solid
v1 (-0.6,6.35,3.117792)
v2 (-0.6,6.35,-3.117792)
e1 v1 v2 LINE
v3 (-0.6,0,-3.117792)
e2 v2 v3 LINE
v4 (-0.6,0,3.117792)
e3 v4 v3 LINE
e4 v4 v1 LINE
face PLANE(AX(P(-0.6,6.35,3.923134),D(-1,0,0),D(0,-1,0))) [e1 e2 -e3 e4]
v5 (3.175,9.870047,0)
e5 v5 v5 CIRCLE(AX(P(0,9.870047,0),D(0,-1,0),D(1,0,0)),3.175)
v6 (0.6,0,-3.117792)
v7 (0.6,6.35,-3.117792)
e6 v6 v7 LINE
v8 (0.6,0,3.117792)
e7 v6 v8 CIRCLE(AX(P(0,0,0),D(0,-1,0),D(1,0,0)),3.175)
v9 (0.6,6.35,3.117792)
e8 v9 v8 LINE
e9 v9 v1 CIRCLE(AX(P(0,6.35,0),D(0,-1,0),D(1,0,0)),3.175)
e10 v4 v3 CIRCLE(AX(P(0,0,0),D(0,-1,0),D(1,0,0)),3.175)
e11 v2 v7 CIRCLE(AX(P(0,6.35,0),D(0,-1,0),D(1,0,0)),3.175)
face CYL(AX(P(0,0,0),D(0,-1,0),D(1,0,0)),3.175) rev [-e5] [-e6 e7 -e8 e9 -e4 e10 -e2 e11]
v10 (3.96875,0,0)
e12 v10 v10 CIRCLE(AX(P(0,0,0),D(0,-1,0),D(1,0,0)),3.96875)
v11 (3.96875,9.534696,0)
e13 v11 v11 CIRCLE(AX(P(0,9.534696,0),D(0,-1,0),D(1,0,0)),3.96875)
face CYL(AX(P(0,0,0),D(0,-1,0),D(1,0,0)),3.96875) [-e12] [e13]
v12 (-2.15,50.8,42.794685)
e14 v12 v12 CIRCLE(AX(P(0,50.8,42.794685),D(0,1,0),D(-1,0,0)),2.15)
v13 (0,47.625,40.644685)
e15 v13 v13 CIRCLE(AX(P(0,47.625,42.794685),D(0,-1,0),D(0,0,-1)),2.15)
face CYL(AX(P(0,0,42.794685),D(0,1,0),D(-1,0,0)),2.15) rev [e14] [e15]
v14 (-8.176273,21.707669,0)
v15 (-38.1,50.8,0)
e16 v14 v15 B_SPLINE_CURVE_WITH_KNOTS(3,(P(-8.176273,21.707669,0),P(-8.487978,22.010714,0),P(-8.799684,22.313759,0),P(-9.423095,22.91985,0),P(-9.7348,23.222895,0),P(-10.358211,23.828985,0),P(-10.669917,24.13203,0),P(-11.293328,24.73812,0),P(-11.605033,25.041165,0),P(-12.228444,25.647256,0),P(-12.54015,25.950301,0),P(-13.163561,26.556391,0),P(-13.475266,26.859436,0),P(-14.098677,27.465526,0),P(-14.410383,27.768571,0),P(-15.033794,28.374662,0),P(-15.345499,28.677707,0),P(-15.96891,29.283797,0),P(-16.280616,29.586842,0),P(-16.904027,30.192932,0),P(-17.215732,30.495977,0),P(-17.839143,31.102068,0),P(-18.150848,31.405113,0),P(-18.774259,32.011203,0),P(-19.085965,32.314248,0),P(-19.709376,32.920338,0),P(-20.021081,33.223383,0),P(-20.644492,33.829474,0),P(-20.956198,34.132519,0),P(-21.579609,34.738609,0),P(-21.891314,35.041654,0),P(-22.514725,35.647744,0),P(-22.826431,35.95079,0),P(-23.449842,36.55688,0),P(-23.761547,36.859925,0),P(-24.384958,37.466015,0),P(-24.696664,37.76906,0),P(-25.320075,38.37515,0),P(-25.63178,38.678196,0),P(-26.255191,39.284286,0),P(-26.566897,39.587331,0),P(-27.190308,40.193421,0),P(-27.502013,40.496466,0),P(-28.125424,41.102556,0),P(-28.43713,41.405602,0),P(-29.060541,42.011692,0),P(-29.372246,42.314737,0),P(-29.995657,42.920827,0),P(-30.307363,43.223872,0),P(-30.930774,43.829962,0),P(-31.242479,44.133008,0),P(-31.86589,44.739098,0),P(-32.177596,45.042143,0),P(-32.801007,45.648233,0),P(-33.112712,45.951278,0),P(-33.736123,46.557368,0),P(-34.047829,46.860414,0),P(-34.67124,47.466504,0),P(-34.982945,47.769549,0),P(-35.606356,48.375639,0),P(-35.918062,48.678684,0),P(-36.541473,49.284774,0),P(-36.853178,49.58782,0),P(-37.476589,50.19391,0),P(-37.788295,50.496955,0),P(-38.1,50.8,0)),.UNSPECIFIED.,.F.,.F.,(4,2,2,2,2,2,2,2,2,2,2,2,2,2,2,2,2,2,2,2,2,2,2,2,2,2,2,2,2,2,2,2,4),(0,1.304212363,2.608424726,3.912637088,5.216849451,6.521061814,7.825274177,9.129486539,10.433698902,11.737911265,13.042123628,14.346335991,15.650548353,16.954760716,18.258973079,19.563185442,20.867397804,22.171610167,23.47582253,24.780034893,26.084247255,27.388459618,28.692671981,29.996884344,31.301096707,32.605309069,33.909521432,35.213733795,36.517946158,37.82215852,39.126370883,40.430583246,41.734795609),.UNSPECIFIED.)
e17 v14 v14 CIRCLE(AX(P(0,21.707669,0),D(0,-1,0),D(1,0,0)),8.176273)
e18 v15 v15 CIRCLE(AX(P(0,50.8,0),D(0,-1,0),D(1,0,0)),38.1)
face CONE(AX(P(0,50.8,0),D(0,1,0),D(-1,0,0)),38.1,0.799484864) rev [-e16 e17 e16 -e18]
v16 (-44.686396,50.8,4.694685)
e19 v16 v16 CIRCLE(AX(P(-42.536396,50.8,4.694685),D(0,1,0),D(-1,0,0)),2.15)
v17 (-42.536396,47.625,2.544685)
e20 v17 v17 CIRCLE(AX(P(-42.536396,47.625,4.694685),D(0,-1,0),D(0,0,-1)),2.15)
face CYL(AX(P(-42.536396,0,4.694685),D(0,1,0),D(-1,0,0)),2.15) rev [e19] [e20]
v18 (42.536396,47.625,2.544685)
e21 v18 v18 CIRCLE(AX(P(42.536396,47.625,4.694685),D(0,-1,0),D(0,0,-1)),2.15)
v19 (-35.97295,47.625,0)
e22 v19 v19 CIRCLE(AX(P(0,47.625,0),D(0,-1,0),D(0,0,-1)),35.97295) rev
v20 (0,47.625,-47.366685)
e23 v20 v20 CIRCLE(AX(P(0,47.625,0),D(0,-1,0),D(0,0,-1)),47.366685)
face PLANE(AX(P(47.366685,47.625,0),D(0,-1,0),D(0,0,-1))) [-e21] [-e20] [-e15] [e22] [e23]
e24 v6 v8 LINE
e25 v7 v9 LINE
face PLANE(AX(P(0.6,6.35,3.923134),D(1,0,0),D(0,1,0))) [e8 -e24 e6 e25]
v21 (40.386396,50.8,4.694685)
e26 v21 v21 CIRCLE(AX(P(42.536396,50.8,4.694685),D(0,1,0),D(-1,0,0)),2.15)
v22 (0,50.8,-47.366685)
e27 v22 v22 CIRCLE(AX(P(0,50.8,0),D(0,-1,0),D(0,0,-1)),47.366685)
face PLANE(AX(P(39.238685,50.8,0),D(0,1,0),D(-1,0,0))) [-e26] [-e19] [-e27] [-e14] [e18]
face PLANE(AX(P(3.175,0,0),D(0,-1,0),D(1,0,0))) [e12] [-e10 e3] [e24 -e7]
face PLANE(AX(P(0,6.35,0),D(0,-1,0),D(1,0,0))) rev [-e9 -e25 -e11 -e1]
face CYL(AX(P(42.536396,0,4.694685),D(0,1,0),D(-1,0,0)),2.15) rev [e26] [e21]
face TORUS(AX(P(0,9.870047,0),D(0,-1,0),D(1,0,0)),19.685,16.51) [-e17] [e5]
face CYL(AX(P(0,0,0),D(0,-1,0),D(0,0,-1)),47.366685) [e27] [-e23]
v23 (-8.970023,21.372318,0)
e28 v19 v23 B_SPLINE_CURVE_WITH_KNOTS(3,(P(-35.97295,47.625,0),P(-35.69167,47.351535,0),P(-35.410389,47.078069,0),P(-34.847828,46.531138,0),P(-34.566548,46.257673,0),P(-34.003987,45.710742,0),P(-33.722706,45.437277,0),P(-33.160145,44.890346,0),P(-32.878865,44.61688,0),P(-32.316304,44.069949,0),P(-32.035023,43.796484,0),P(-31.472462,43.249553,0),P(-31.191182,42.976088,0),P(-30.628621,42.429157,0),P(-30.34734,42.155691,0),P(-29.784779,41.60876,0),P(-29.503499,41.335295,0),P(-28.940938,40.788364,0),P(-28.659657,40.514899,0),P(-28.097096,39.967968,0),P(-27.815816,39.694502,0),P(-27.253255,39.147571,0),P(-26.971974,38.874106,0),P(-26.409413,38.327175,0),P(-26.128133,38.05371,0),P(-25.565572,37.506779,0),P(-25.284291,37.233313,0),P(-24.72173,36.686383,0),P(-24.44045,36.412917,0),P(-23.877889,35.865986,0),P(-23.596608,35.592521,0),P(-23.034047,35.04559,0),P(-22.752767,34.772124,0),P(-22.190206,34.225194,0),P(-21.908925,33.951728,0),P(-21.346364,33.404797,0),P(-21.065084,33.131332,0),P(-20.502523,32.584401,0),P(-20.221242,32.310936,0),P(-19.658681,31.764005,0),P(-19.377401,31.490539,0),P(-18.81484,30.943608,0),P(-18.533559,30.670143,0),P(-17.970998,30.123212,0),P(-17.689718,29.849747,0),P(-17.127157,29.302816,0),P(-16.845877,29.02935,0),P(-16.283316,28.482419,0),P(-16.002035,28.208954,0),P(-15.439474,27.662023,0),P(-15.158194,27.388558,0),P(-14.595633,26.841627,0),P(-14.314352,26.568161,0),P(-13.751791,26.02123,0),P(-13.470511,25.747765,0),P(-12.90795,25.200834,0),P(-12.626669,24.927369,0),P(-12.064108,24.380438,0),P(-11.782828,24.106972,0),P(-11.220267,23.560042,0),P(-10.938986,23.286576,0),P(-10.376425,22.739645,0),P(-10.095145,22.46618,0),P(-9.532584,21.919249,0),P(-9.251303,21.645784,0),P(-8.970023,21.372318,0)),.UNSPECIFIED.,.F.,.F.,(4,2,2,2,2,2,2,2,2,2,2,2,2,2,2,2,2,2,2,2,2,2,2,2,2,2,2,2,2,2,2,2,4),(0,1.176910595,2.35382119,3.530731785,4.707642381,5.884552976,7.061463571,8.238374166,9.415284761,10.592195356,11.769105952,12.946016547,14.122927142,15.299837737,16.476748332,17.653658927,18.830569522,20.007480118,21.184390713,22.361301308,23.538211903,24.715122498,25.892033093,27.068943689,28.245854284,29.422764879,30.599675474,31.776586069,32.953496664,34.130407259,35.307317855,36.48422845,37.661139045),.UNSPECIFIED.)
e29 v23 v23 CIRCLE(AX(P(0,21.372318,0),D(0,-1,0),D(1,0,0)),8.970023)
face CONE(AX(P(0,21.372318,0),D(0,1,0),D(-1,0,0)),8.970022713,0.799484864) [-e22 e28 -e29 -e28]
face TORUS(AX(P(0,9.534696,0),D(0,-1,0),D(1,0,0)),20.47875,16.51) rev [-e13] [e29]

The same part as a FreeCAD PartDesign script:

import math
import FreeCAD as App
import Part
import Sketcher

V = App.Vector
Q = App.Units.Quantity

doc = App.newDocument("Part")
body = doc.addObject("PartDesign::Body", "Body")

# Sketch on XY plane
sketch1 = body.newObject("Sketcher::SketchObject", "Sketch")
sketch1.AttachmentSupport = (doc.getObject("XY_Plane"), [""])
sketch1.MapMode = "FlatFace"
sketch1.addGeometry([
    Part.LineSegment(V(4, 0, 0), V(4, 9.5, 0)),  # 0
    Part.ArcOfCircle(Part.Circle(V(20.5, 9.5, 0), V(0, 0, 1), 16.5), math.radians(134), math.radians(180)),  # 1
    Part.LineSegment(V(9, 21.4, 0), V(39.2, 50.8, 0)),  # 2
    Part.LineSegment(V(39.2, 50.8, 0), V(38.1, 50.8, 0)),  # 3
    Part.LineSegment(V(38.1, 50.8, 0), V(8.2, 21.7, 0)),  # 4
    Part.ArcOfCircle(Part.Circle(V(19.7, 9.9, 0), V(0, 0, 1), 16.5), math.radians(134), math.radians(180)),  # 5
    Part.LineSegment(V(3.2, 9.9, 0), V(3.2, 0, 0)),  # 6
    Part.LineSegment(V(3.2, 0, 0), V(4, 0, 0)),  # 7
], False)
sketch1.addConstraint([
    Sketcher.Constraint("Tangent", 0, 2, 1, 2),
    Sketcher.Constraint("Tangent", 1, 1, 2, 1),
    Sketcher.Constraint("Coincident", 2, 2, 3, 1),
    Sketcher.Constraint("Coincident", 3, 2, 4, 1),
    Sketcher.Constraint("Tangent", 4, 2, 5, 1),
    Sketcher.Constraint("Tangent", 5, 2, 6, 1),
    Sketcher.Constraint("Coincident", 6, 2, 7, 1),
    Sketcher.Constraint("Coincident", 7, 2, 0, 1),
    Sketcher.Constraint("Vertical", 0),
    Sketcher.Constraint("Horizontal", 3),
    Sketcher.Constraint("Vertical", 6),
    Sketcher.Constraint("Horizontal", 7),
    Sketcher.Constraint("Equal", 1, 5),
    Sketcher.Constraint("PointOnObject", 6, 2, -1),
    Sketcher.Constraint("Parallel", 2, 4),
    Sketcher.Constraint("Radius", 1, Q("0.65 in")),
    Sketcher.Constraint("DistanceY", -1, 1, 2, 2, Q("2 in")),
    Sketcher.Constraint("DistanceX", -1, 1, 3, 2, Q("1.5 in")),
    Sketcher.Constraint("DistanceX", 7, 1, 7, 2, Q("0.03125 in")),
    Sketcher.Constraint("DistanceX", -1, 1, 5, 3, Q("0.775 in")),
    Sketcher.Constraint("Distance", 2, Q("42.215878 mm")),
    Sketcher.Constraint("DistanceX", 3, 2, 3, 1, Q("1.138685 mm")),
])
revolution = body.newObject("PartDesign::Revolution", "Revolution")
revolution.Profile = sketch1
revolution.ReferenceAxis = (sketch1, ["V_Axis"])
revolution.Angle = 360

# Sketch on XY plane
sketch2 = body.newObject("Sketcher::SketchObject", "Sketch001")
sketch2.AttachmentSupport = (doc.getObject("XY_Plane"), [""])
sketch2.MapMode = "FlatFace"
sketch2.addGeometry([
    Part.LineSegment(V(47.4, 50.8, 0), V(39.2, 50.8, 0)),
    Part.LineSegment(V(39.2, 50.8, 0), V(36, 47.6, 0)),
    Part.LineSegment(V(36, 47.6, 0), V(47.4, 47.6, 0)),
    Part.LineSegment(V(47.4, 47.6, 0), V(47.4, 50.8, 0)),
], False)
sketch2.addConstraint([
    Sketcher.Constraint("Coincident", 0, 2, 1, 1),
    Sketcher.Constraint("Coincident", 1, 2, 2, 1),
    Sketcher.Constraint("Coincident", 2, 2, 3, 1),
    Sketcher.Constraint("Coincident", 3, 2, 0, 1),
    Sketcher.Constraint("Horizontal", 0),
    Sketcher.Constraint("Horizontal", 2),
    Sketcher.Constraint("Vertical", 3),
    Sketcher.Constraint("DistanceY", -1, 1, 0, 2, Q("2 in")),
    Sketcher.Constraint("DistanceX", 0, 2, 0, 1, Q("0.32 in")),
    Sketcher.Constraint("DistanceY", 3, 1, 3, 2, Q("0.125 in")),
    Sketcher.Constraint("Distance", 1, Q("4.554739 mm")),
    Sketcher.Constraint("DistanceX", -1, 1, 1, 2, Q("35.97295 mm")),
])
revolution2 = body.newObject("PartDesign::Revolution", "Revolution001")
revolution2.Profile = sketch2
revolution2.ReferenceAxis = (sketch2, ["V_Axis"])
revolution2.Angle = 360

# Sketch on XZ plane
sketch3 = body.newObject("Sketcher::SketchObject", "Sketch002")
sketch3.AttachmentSupport = (doc.getObject("XZ_Plane"), [""])
sketch3.MapMode = "FlatFace"
sketch3.AttachmentOffset = App.Placement(V(0, 0, -2 * 25.4), App.Rotation())
sketch3.addGeometry([
    Part.Circle(V(0, 42.8, 0), V(0, 0, 1), 2.1),
    Part.Circle(V(-42.5, 4.7, 0), V(0, 0, 1), 2.1),
    Part.Circle(V(42.5, 4.7, 0), V(0, 0, 1), 2.1),
], False)
sketch3.addConstraint([
    Sketcher.Constraint("Equal", 0, 1),
    Sketcher.Constraint("Equal", 1, 2),
    Sketcher.Constraint("Symmetric", 1, 3, 2, 3, -2),
    Sketcher.Constraint("PointOnObject", 0, 3, -2),
    Sketcher.Constraint("DistanceY", 1, 3, 0, 3, Q("1.5 in")),
    Sketcher.Constraint("Diameter", 0, Q("4.3 mm")),
    Sketcher.Constraint("DistanceX", 1, 3, 2, 3, Q("85.072792 mm")),
    Sketcher.Constraint("DistanceY", -1, 1, 0, 3, Q("42.794685 mm")),
])
pocket1 = body.newObject("PartDesign::Pocket", "Pocket")
pocket1.Profile = sketch3
pocket1.Type = "ThroughAll"
pocket1.Reversed = True

# Sketch on XZ plane
sketch4 = body.newObject("Sketcher::SketchObject", "Sketch003")
sketch4.AttachmentSupport = (doc.getObject("XZ_Plane"), [""])
sketch4.MapMode = "FlatFace"
sketch4.addGeometry([
    Part.LineSegment(V(-0.6, 3.9, 0), V(-0.6, -3.9, 0)),
    Part.LineSegment(V(-0.6, -3.9, 0), V(0.6, -3.9, 0)),
    Part.LineSegment(V(0.6, -3.9, 0), V(0.6, 3.9, 0)),
    Part.LineSegment(V(0.6, 3.9, 0), V(-0.6, 3.9, 0)),
], False)
sketch4.addConstraint([
    Sketcher.Constraint("Coincident", 0, 2, 1, 1),
    Sketcher.Constraint("Coincident", 1, 2, 2, 1),
    Sketcher.Constraint("Coincident", 2, 2, 3, 1),
    Sketcher.Constraint("Coincident", 3, 2, 0, 1),
    Sketcher.Constraint("Vertical", 0),
    Sketcher.Constraint("Horizontal", 1),
    Sketcher.Constraint("Vertical", 2),
    Sketcher.Constraint("Horizontal", 3),
    Sketcher.Constraint("Symmetric", 0, 2, 2, 2, -1, 1),
    Sketcher.Constraint("DistanceX", 1, 1, 1, 2, Q("1.2 mm")),
    Sketcher.Constraint("DistanceY", 0, 2, 0, 1, Q("7.846267 mm")),
])
pad1 = body.newObject("PartDesign::Pad", "Pad")
pad1.Profile = sketch4
pad1.Length = Q("0.25 in")
pad1.Reversed = True

doc.recompute()
